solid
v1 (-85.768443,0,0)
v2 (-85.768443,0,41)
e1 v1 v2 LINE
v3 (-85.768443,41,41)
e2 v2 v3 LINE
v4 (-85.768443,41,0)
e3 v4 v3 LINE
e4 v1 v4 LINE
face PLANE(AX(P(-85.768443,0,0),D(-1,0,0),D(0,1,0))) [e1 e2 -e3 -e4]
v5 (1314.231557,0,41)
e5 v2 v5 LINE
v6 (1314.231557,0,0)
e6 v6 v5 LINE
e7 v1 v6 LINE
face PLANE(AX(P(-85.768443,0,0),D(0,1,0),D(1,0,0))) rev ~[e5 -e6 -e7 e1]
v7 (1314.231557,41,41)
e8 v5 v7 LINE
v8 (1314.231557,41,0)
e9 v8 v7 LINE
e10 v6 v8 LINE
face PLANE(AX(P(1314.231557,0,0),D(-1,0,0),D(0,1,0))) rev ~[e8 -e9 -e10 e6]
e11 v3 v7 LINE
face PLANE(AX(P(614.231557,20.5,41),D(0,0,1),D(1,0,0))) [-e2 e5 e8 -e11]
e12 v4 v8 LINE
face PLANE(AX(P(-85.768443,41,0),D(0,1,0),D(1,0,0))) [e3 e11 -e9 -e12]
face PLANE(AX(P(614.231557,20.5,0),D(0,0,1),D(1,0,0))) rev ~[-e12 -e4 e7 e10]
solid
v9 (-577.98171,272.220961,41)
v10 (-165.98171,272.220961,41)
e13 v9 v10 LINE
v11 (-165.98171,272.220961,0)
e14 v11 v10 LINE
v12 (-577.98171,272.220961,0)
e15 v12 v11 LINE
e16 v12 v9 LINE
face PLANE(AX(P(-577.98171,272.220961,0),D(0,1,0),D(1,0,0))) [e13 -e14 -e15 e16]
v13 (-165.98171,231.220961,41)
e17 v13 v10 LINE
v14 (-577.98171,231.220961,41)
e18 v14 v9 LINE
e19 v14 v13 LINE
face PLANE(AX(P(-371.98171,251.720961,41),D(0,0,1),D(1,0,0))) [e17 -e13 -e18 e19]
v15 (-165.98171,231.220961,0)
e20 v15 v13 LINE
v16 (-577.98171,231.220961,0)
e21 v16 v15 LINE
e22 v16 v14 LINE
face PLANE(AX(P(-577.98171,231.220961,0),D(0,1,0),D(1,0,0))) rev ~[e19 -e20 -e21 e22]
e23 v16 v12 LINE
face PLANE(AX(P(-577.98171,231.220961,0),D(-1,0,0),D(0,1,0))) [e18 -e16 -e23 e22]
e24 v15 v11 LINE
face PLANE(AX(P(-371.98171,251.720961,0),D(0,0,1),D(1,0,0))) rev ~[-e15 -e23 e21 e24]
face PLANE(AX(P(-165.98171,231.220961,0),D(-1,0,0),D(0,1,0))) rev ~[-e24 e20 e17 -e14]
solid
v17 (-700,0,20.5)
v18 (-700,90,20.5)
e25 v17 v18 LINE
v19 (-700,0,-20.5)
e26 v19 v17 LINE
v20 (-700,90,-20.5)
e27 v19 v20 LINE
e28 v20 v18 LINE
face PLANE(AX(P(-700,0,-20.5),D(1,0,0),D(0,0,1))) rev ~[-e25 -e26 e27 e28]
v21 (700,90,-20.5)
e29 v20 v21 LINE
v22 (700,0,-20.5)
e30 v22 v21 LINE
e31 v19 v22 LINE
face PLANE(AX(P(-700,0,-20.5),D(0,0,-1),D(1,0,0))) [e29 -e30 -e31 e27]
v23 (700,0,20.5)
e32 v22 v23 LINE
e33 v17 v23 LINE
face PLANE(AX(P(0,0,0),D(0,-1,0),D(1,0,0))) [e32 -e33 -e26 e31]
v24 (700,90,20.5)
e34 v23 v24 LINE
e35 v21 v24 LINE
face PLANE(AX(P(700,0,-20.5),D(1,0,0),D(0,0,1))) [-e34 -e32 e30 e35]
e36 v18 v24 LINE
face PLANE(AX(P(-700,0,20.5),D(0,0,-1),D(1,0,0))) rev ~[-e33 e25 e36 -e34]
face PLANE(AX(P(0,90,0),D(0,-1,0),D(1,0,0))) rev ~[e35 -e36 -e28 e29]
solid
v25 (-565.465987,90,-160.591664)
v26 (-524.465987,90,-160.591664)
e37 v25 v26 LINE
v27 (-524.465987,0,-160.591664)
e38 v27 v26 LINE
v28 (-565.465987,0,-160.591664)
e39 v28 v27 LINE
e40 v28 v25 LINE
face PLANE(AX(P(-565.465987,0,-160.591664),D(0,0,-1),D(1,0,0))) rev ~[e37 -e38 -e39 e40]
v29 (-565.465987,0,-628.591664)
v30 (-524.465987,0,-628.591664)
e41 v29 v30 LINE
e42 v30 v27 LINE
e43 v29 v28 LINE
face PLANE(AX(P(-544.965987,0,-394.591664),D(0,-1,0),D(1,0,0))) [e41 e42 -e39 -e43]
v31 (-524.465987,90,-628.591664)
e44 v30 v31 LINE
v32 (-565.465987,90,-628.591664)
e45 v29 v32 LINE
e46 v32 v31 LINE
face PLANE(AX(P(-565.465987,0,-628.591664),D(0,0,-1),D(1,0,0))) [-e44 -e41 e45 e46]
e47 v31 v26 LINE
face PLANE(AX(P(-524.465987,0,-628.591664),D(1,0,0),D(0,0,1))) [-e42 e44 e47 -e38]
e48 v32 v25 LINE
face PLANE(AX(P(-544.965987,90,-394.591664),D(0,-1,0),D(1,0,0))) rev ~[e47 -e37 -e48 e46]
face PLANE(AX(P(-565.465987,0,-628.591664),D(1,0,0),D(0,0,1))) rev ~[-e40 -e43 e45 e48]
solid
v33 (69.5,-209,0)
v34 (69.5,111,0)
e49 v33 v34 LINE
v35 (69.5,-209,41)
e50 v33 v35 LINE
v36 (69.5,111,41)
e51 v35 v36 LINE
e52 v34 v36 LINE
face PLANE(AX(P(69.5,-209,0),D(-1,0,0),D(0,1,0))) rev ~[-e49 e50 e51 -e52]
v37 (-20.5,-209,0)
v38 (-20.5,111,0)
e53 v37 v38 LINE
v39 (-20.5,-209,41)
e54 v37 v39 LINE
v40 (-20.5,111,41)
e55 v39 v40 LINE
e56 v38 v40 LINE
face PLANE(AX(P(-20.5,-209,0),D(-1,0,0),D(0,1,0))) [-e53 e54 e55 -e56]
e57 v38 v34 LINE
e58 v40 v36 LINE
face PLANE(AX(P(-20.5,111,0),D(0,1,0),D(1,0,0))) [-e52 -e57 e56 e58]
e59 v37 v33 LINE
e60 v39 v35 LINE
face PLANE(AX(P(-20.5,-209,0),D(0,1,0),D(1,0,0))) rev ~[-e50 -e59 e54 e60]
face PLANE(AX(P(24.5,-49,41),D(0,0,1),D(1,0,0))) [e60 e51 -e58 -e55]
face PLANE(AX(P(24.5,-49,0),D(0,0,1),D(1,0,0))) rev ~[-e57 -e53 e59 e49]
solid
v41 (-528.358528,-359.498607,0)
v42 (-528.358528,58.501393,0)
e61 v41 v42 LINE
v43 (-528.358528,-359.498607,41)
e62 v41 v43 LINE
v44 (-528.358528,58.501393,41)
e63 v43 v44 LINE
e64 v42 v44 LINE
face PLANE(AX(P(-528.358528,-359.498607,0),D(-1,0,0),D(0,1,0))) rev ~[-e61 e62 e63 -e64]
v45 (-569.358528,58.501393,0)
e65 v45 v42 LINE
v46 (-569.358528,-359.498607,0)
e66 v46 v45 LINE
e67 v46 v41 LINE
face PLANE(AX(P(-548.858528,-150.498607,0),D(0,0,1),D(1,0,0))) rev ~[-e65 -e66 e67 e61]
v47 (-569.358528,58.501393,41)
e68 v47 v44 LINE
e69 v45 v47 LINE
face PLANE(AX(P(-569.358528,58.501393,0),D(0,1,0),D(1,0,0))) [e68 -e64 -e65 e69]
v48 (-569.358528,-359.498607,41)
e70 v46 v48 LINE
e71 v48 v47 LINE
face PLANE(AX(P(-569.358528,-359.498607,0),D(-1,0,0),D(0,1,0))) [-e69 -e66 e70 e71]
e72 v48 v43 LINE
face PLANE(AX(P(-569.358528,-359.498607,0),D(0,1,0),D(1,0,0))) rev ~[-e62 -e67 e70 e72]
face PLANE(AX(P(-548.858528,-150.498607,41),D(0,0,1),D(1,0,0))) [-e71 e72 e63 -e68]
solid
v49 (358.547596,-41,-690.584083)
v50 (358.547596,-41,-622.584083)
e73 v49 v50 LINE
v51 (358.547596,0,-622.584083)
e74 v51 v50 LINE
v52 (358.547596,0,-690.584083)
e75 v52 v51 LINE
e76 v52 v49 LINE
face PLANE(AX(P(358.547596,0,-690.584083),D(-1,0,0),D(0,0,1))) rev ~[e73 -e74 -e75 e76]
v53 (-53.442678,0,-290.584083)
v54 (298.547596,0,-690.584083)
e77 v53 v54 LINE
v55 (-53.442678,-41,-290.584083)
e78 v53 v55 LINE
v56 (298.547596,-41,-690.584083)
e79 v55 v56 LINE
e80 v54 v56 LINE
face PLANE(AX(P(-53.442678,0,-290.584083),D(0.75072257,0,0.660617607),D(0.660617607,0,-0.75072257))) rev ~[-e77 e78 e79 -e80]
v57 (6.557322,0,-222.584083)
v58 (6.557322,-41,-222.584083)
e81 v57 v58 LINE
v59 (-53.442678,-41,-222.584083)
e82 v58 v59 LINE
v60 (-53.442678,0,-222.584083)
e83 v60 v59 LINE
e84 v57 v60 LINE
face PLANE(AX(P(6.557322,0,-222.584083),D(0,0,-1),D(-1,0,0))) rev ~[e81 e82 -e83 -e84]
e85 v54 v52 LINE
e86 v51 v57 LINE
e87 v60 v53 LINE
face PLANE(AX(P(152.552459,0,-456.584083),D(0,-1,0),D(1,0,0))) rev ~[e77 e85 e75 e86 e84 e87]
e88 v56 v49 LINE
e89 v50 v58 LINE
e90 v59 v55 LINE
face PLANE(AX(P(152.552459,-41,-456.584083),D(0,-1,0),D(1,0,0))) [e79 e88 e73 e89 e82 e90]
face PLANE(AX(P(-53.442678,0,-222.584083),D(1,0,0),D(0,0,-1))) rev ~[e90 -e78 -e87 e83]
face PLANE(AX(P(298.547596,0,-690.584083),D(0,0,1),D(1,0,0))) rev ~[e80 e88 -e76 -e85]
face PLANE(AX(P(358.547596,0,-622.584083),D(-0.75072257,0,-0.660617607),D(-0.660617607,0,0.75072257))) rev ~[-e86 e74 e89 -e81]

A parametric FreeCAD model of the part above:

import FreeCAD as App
import Part
import Sketcher

V = App.Vector
Q = App.Units.Quantity

doc = App.newDocument("Part")
body = doc.addObject("PartDesign::Body", "Body")

# Sketch on XY plane
sketch1 = body.newObject("Sketcher::SketchObject", "Sketch")
sketch1.AttachmentSupport = (doc.getObject("XY_Plane"), [""])
sketch1.MapMode = "FlatFace"
sketch1.addGeometry(Part.LineSegment(V(-85.768443, 41, 0), V(-85.768443, 0, 0)), False)
sketch1.addGeometry(Part.LineSegment(V(-85.768443, 0, 0), V(1314.231557, 0, 0)), False)
sketch1.addGeometry(Part.LineSegment(V(1314.231557, 0, 0), V(1314.231557, 41, 0)), False)
sketch1.addGeometry(Part.LineSegment(V(1314.231557, 41, 0), V(-85.768443, 41, 0)), False)
sketch1.addConstraint(Sketcher.Constraint("Coincident", 0, 2, 1, 1))
sketch1.addConstraint(Sketcher.Constraint("Coincident", 1, 2, 2, 1))
sketch1.addConstraint(Sketcher.Constraint("Coincident", 2, 2, 3, 1))
sketch1.addConstraint(Sketcher.Constraint("Coincident", 3, 2, 0, 1))
sketch1.addConstraint(Sketcher.Constraint("Vertical", 0))
sketch1.addConstraint(Sketcher.Constraint("Horizontal", 1))
sketch1.addConstraint(Sketcher.Constraint("Vertical", 2))
sketch1.addConstraint(Sketcher.Constraint("Horizontal", 3))
sketch1.addConstraint(Sketcher.Constraint("PointOnObject", 0, 2, -1))
sketch1.addConstraint(Sketcher.Constraint("DistanceX", 1, 1, 1, 2, Q("1400 mm")))
sketch1.addConstraint(Sketcher.Constraint("DistanceY", 0, 2, 0, 1, Q("41 mm")))
sketch1.addConstraint(Sketcher.Constraint("DistanceX", 0, 2, -1, 1, Q("85.768443 mm")))
pad1 = body.newObject("PartDesign::Pad", "Pad")
pad1.Profile = sketch1
pad1.Length = 41
body2 = doc.addObject("PartDesign::Body", "Body001")

# Sketch on XY plane
sketch2 = body2.newObject("Sketcher::SketchObject", "Sketch001")
sketch2.AttachmentSupport = (doc.getObject("XY_Plane001"), [""])
sketch2.MapMode = "FlatFace"
sketch2.addGeometry(Part.LineSegment(V(-569.358528, 58.501393, 0), V(-569.358528, -359.498607, 0)), False)
sketch2.addGeometry(Part.LineSegment(V(-569.358528, -359.498607, 0), V(-528.358528, -359.498607, 0)), False)
sketch2.addGeometry(Part.LineSegment(V(-528.358528, -359.498607, 0), V(-528.358528, 58.501393, 0)), False)
sketch2.addGeometry(Part.LineSegment(V(-528.358528, 58.501393, 0), V(-569.358528, 58.501393, 0)), False)
sketch2.addConstraint(Sketcher.Constraint("Coincident", 0, 2, 1, 1))
sketch2.addConstraint(Sketcher.Constraint("Coincident", 1, 2, 2, 1))
sketch2.addConstraint(Sketcher.Constraint("Coincident", 2, 2, 3, 1))
sketch2.addConstraint(Sketcher.Constraint("Coincident", 3, 2, 0, 1))
sketch2.addConstraint(Sketcher.Constraint("Vertical", 0))
sketch2.addConstraint(Sketcher.Constraint("Horizontal", 1))
sketch2.addConstraint(Sketcher.Constraint("Vertical", 2))
sketch2.addConstraint(Sketcher.Constraint("Horizontal", 3))
sketch2.addConstraint(Sketcher.Constraint("DistanceX", 1, 1, 1, 2, Q("41 mm")))
sketch2.addConstraint(Sketcher.Constraint("DistanceY", 0, 2, 0, 1, Q("418 mm")))
sketch2.addConstraint(Sketcher.Constraint("DistanceX", 0, 2, -1, 1, Q("569.358528 mm")))
sketch2.addConstraint(Sketcher.Constraint("DistanceY", 0, 2, -1, 1, Q("359.498607 mm")))
pad2 = body2.newObject("PartDesign::Pad", "Pad001")
pad2.Profile = sketch2
pad2.Length = 41
body3 = doc.addObject("PartDesign::Body", "Body002")

# Sketch on XZ plane
sketch3 = body3.newObject("Sketcher::SketchObject", "Sketch002")
sketch3.AttachmentSupport = (doc.getObject("XZ_Plane002"), [""])
sketch3.MapMode = "FlatFace"
sketch3.addGeometry(Part.LineSegment(V(-565.465987, -160.591664, 0), V(-565.465987, -628.591664, 0)), False)
sketch3.addGeometry(Part.LineSegment(V(-565.465987, -628.591664, 0), V(-524.465987, -628.591664, 0)), False)
sketch3.addGeometry(Part.LineSegment(V(-524.465987, -628.591664, 0), V(-524.465987, -160.591664, 0)), False)
sketch3.addGeometry(Part.LineSegment(V(-524.465987, -160.591664, 0), V(-565.465987, -160.591664, 0)), False)
sketch3.addConstraint(Sketcher.Constraint("Coincident", 0, 2, 1, 1))
sketch3.addConstraint(Sketcher.Constraint("Coincident", 1, 2, 2, 1))
sketch3.addConstraint(Sketcher.Constraint("Coincident", 2, 2, 3, 1))
sketch3.addConstraint(Sketcher.Constraint("Coincident", 3, 2, 0, 1))
sketch3.addConstraint(Sketcher.Constraint("Vertical", 0))
sketch3.addConstraint(Sketcher.Constraint("Horizontal", 1))
sketch3.addConstraint(Sketcher.Constraint("Vertical", 2))
sketch3.addConstraint(Sketcher.Constraint("Horizontal", 3))
sketch3.addConstraint(Sketcher.Constraint("DistanceX", 1, 1, 1, 2, Q("41 mm")))
sketch3.addConstraint(Sketcher.Constraint("DistanceY", 0, 2, 0, 1, Q("468 mm")))
sketch3.addConstraint(Sketcher.Constraint("DistanceX", 0, 2, -1, 1, Q("565.465987 mm")))
sketch3.addConstraint(Sketcher.Constraint("DistanceY", 0, 2, -1, 1, Q("628.591664 mm")))
pad3 = body3.newObject("PartDesign::Pad", "Pad002")
pad3.Profile = sketch3
pad3.Length = 90
pad3.Reversed = True
body4 = doc.addObject("PartDesign::Body", "Body003")

# Sketch on XZ plane
sketch4 = body4.newObject("Sketcher::SketchObject", "Sketch003")
sketch4.AttachmentSupport = (doc.getObject("XZ_Plane003"), [""])
sketch4.MapMode = "FlatFace"
sketch4.addGeometry(Part.LineSegment(V(-700, 20.5, 0), V(-700, -20.5, 0)), False)
sketch4.addGeometry(Part.LineSegment(V(-700, -20.5, 0), V(700, -20.5, 0)), False)
sketch4.addGeometry(Part.LineSegment(V(700, -20.5, 0), V(700, 20.5, 0)), False)
sketch4.addGeometry(Part.LineSegment(V(700, 20.5, 0), V(-700, 20.5, 0)), False)
sketch4.addConstraint(Sketcher.Constraint("Coincident", 0, 2, 1, 1))
sketch4.addConstraint(Sketcher.Constraint("Coincident", 1, 2, 2, 1))
sketch4.addConstraint(Sketcher.Constraint("Coincident", 2, 2, 3, 1))
sketch4.addConstraint(Sketcher.Constraint("Coincident", 3, 2, 0, 1))
sketch4.addConstraint(Sketcher.Constraint("Vertical", 0))
sketch4.addConstraint(Sketcher.Constraint("Horizontal", 1))
sketch4.addConstraint(Sketcher.Constraint("Vertical", 2))
sketch4.addConstraint(Sketcher.Constraint("Horizontal", 3))
sketch4.addConstraint(Sketcher.Constraint("Symmetric", 0, 2, 2, 2, -1, 1))
sketch4.addConstraint(Sketcher.Constraint("DistanceX", 1, 1, 1, 2, Q("1400 mm")))
sketch4.addConstraint(Sketcher.Constraint("DistanceY", 0, 2, 0, 1, Q("41 mm")))
pad4 = body4.newObject("PartDesign::Pad", "Pad003")
pad4.Profile = sketch4
pad4.Length = 90
pad4.Reversed = True
body5 = doc.addObject("PartDesign::Body", "Body004")

# Sketch on XY plane
sketch5 = body5.newObject("Sketcher::SketchObject", "Sketch004")
sketch5.AttachmentSupport = (doc.getObject("XY_Plane004"), [""])
sketch5.MapMode = "FlatFace"
sketch5.addGeometry(Part.LineSegment(V(-20.5, 111, 0), V(-20.5, -209, 0)), False)
sketch5.addGeometry(Part.LineSegment(V(-20.5, -209, 0), V(69.5, -209, 0)), False)
sketch5.addGeometry(Part.LineSegment(V(69.5, -209, 0), V(69.5, 111, 0)), False)
sketch5.addGeometry(Part.LineSegment(V(69.5, 111, 0), V(-20.5, 111, 0)), False)
sketch5.addConstraint(Sketcher.Constraint("Coincident", 0, 2, 1, 1))
sketch5.addConstraint(Sketcher.Constraint("Coincident", 1, 2, 2, 1))
sketch5.addConstraint(Sketcher.Constraint("Coincident", 2, 2, 3, 1))
sketch5.addConstraint(Sketcher.Constraint("Coincident", 3, 2, 0, 1))
sketch5.addConstraint(Sketcher.Constraint("Vertical", 0))
sketch5.addConstraint(Sketcher.Constraint("Horizontal", 1))
sketch5.addConstraint(Sketcher.Constraint("Vertical", 2))
sketch5.addConstraint(Sketcher.Constraint("Horizontal", 3))
sketch5.addConstraint(Sketcher.Constraint("DistanceX", 1, 1, 1, 2, Q("90 mm")))
sketch5.addConstraint(Sketcher.Constraint("DistanceY", 0, 2, 0, 1, Q("320 mm")))
sketch5.addConstraint(Sketcher.Constraint("DistanceY", 0, 2, -1, 1, Q("209 mm")))
sketch5.addConstraint(Sketcher.Constraint("DistanceX", 0, 2, -1, 1, Q("20.5 mm")))
pad5 = body5.newObject("PartDesign::Pad", "Pad004")
pad5.Profile = sketch5
pad5.Length = 41
body6 = doc.addObject("PartDesign::Body", "Body005")

# Sketch on XY plane
sketch6 = body6.newObject("Sketcher::SketchObject", "Sketch005")
sketch6.AttachmentSupport = (doc.getObject("XY_Plane005"), [""])
sketch6.MapMode = "FlatFace"
sketch6.addGeometry(Part.LineSegment(V(-577.98171, 272.220961, 0), V(-577.98171, 231.220961, 0)), False)
sketch6.addGeometry(Part.LineSegment(V(-577.98171, 231.220961, 0), V(-165.98171, 231.220961, 0)), False)
sketch6.addGeometry(Part.LineSegment(V(-165.98171, 231.220961, 0), V(-165.98171, 272.220961, 0)), False)
sketch6.addGeometry(Part.LineSegment(V(-165.98171, 272.220961, 0), V(-577.98171, 272.220961, 0)), False)
sketch6.addConstraint(Sketcher.Constraint("Coincident", 0, 2, 1, 1))
sketch6.addConstraint(Sketcher.Constraint("Coincident", 1, 2, 2, 1))
sketch6.addConstraint(Sketcher.Constraint("Coincident", 2, 2, 3, 1))
sketch6.addConstraint(Sketcher.Constraint("Coincident", 3, 2, 0, 1))
sketch6.addConstraint(Sketcher.Constraint("Vertical", 0))
sketch6.addConstraint(Sketcher.Constraint("Horizontal", 1))
sketch6.addConstraint(Sketcher.Constraint("Vertical", 2))
sketch6.addConstraint(Sketcher.Constraint("Horizontal", 3))
sketch6.addConstraint(Sketcher.Constraint("DistanceX", 1, 1, 1, 2, Q("412 mm")))
sketch6.addConstraint(Sketcher.Constraint("DistanceY", 0, 2, 0, 1, Q("41 mm")))
sketch6.addConstraint(Sketcher.Constraint("DistanceX", 0, 2, -1, 1, Q("577.98171 mm")))
sketch6.addConstraint(Sketcher.Constraint("DistanceY", -1, 1, 0, 2, Q("231.220961 mm")))
pad6 = body6.newObject("PartDesign::Pad", "Pad005")
pad6.Profile = sketch6
pad6.Length = 41
body7 = doc.addObject("PartDesign::Body", "Body006")

# Sketch on XZ plane
sketch7 = body7.newObject("Sketcher::SketchObject", "Sketch006")
sketch7.AttachmentSupport = (doc.getObject("XZ_Plane006"), [""])
sketch7.MapMode = "FlatFace"
sketch7.addGeometry(Part.LineSegment(V(-53.442678, -222.584083, 0), V(-53.442678, -290.584083, 0)), False)
sketch7.addGeometry(Part.LineSegment(V(-53.442678, -290.584083, 0), V(298.547596, -690.584083, 0)), False)
sketch7.addGeometry(Part.LineSegment(V(298.547596, -690.584083, 0), V(358.547596, -690.584083, 0)), False)
sketch7.addGeometry(Part.LineSegment(V(358.547596, -690.584083, 0), V(358.547596, -622.584083, 0)), False)
sketch7.addGeometry(Part.LineSegment(V(358.547596, -622.584083, 0), V(6.557322, -222.584083, 0)), False)
sketch7.addGeometry(Part.LineSegment(V(6.557322, -222.584083, 0), V(-53.442678, -222.584083, 0)), False)
sketch7.addConstraint(Sketcher.Constraint("Coincident", 0, 2, 1, 1))
sketch7.addConstraint(Sketcher.Constraint("Coincident", 1, 2, 2, 1))
sketch7.addConstraint(Sketcher.Constraint("Coincident", 2, 2, 3, 1))
sketch7.addConstraint(Sketcher.Constraint("Coincident", 3, 2, 4, 1))
sketch7.addConstraint(Sketcher.Constraint("Coincident", 4, 2, 5, 1))
sketch7.addConstraint(Sketcher.Constraint("Coincident", 5, 2, 0, 1))
sketch7.addConstraint(Sketcher.Constraint("Vertical", 0))
sketch7.addConstraint(Sketcher.Constraint("Horizontal", 2))
sketch7.addConstraint(Sketcher.Constraint("Vertical", 3))
sketch7.addConstraint(Sketcher.Constraint("Horizontal", 5))
sketch7.addConstraint(Sketcher.Constraint("Parallel", 1, 4))
sketch7.addConstraint(Sketcher.Constraint("Equal", 2, 5))
sketch7.addConstraint(Sketcher.Constraint("DistanceX", 2, 1, 2, 2, Q("60 mm")))
sketch7.addConstraint(Sketcher.Constraint("DistanceY", 0, 2, 0, 1, Q("68 mm")))
sketch7.addConstraint(Sketcher.Constraint("DistanceY", 1, 2, 0, 2, Q("400 mm")))
sketch7.addConstraint(Sketcher.Constraint("Distance", 1, Q("532.82 mm")))
sketch7.addConstraint(Sketcher.Constraint("DistanceX", 0, 2, -1, 1, Q("53.442678 mm")))
sketch7.addConstraint(Sketcher.Constraint("DistanceY", 0, 2, -1, 1, Q("290.584083 mm")))
pad7 = body7.newObject("PartDesign::Pad", "Pad006")
pad7.Profile = sketch7
pad7.Length = 41

doc.recompute()
